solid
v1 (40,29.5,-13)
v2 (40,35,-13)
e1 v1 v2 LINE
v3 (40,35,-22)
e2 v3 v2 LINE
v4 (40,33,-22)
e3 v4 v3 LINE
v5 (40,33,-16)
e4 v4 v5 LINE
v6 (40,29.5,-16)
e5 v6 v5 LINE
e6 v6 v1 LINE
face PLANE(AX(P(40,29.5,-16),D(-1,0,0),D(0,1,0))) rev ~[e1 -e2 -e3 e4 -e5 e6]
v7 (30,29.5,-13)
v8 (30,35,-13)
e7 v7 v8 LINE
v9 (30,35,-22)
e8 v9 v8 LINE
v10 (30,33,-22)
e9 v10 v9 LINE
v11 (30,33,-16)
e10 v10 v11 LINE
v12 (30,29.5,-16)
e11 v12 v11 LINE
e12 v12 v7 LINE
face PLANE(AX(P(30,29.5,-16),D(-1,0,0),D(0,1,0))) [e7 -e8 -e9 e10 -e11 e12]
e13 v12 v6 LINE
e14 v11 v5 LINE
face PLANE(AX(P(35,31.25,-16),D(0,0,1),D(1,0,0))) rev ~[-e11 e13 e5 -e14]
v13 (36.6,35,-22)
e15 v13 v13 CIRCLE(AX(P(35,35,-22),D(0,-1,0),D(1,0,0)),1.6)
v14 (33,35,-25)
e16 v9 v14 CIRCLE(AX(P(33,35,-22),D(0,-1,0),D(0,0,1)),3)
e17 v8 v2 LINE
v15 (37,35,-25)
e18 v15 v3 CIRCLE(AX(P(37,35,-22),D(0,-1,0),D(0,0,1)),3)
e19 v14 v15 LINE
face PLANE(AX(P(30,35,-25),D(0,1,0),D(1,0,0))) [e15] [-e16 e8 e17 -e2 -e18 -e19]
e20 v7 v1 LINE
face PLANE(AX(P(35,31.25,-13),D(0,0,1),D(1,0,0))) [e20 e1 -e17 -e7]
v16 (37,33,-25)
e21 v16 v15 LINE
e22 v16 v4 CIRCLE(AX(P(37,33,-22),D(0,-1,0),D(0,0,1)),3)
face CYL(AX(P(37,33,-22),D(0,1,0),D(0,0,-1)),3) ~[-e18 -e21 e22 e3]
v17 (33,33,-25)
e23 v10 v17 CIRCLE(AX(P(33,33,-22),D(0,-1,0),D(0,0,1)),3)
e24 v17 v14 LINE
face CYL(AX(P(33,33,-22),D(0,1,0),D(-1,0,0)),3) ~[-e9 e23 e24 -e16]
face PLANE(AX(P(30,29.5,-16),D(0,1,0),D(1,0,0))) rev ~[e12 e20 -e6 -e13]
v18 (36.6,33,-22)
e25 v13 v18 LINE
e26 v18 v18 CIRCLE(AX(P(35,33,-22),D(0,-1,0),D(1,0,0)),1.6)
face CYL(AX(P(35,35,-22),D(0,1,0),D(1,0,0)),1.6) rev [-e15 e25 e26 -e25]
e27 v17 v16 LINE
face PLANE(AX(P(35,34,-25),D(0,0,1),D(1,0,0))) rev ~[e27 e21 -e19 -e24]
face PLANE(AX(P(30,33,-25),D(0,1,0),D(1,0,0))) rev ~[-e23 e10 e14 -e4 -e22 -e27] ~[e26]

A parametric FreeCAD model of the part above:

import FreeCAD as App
import Part
import Sketcher

V = App.Vector


def edges_at(feature, points):
    """Names of the edges that pass closest to the given points."""
    edges = feature.Shape.Edges
    near = lambda p: min(range(len(edges)), key=lambda i: edges[i].distToShape(Part.Vertex(*p))[0])
    return sorted({f"Edge{near(p) + 1}" for p in points})


def add_polygon(sketch, points):
    """Adds a closed chain of lines whose ends are joined by coincident constraints."""
    first, n = sketch.GeometryCount, len(points)
    for a, b in zip(points, points[1:] + points[:1]):
        sketch.addGeometry(Part.LineSegment(App.Vector(*a, 0), App.Vector(*b, 0)), False)
    for i in range(n):
        sketch.addConstraint(Sketcher.Constraint("Coincident", first + i, 2, first + (i + 1) % n, 1))

doc = App.newDocument("Part")
params = doc.addObject("Spreadsheet::Sheet", "Params")
for row, (alias, value) in enumerate([
    ("sketch1_width", "10 mm"),
    ("sketch1_height", "3.5 mm"),
    ("pad1_length", "3 mm"),
    ("sketch2_diameter", "3.2 mm"),
    ("pad2_length", "2 mm"),
    ("sketch3_width", "10 mm"),
    ("sketch3_height", "2 mm"),
    ("pad3_length", "12 mm"),
    ("fillet_radius", "3 mm"),
], start=1):
    params.set(f"A{row}", alias)
    params.set(f"B{row}", "=" + value)
    params.setAlias(f"B{row}", alias)

body = doc.addObject("PartDesign::Body", "Body")

# Sketch on XY plane
sketch1 = doc.addObject("Sketcher::SketchObject", "Sketch")
body.addObject(sketch1)
sketch1.AttachmentSupport = (doc.XY_Plane, [""])
sketch1.MapMode = "FlatFace"
sketch1.AttachmentOffset = App.Placement(V(0, 0, -16), App.Rotation())
add_polygon(sketch1, [(30, 33), (30, 29.5), (40, 29.5), (40, 33)])  # lines 0-3
sketch1.addConstraint(Sketcher.Constraint("Vertical", 0))
sketch1.addConstraint(Sketcher.Constraint("Horizontal", 1))
sketch1.addConstraint(Sketcher.Constraint("Vertical", 2))
sketch1.addConstraint(Sketcher.Constraint("Horizontal", 3))
sketch1.addConstraint(Sketcher.Constraint("DistanceX", 1, 1, 1, 2, 10.0))
sketch1.addConstraint(Sketcher.Constraint("DistanceY", 0, 2, 0, 1, 3.5))
sketch1.addConstraint(Sketcher.Constraint("DistanceX", -1, 1, 0, 2, 30.0))
sketch1.addConstraint(Sketcher.Constraint("DistanceY", -1, 1, 2, 2, 33.0))
sketch1.setExpression("Constraints[8]", "Params.sketch1_width")
sketch1.setExpression("Constraints[9]", "Params.sketch1_height")
pad1 = doc.addObject("PartDesign::Pad", "Pad")
body.addObject(pad1)
pad1.Profile = sketch1
pad1.setExpression("Length", "Params.pad1_length")
body2 = doc.addObject("PartDesign::Body", "Body001")

# Sketch on XZ plane
sketch2 = doc.addObject("Sketcher::SketchObject", "Sketch001")
body2.addObject(sketch2)
sketch2.AttachmentSupport = (doc.getObject("XZ_Plane001"), [""])
sketch2.MapMode = "FlatFace"
sketch2.AttachmentOffset = App.Placement(V(0, 0, -35), App.Rotation())
sketch2.addGeometry(Part.Circle(V(35, -22, 0), V(0, 0, 1), 1.6), False)
sketch2.addConstraint(Sketcher.Constraint("Diameter", 0, 3.2))
sketch2.addConstraint(Sketcher.Constraint("DistanceX", -1, 1, 0, 3, 35.0))
sketch2.addConstraint(Sketcher.Constraint("DistanceY", 0, 3, -1, 1, 22.0))
sketch2.setExpression("Constraints[0]", "Params.sketch2_diameter")
pad2 = doc.addObject("PartDesign::Pad", "Pad001")
body2.addObject(pad2)
pad2.Profile = sketch2
pad2.setExpression("Length", "Params.pad2_length")
body3 = doc.addObject("PartDesign::Body", "Body002")

# Sketch on XY plane
sketch3 = doc.addObject("Sketcher::SketchObject", "Sketch002")
body3.addObject(sketch3)
sketch3.AttachmentSupport = (doc.getObject("XY_Plane002"), [""])
sketch3.MapMode = "FlatFace"
sketch3.AttachmentOffset = App.Placement(V(0, 0, -25), App.Rotation())
add_polygon(sketch3, [(30, 35), (30, 33), (40, 33), (40, 35)])  # lines 0-3
sketch3.addConstraint(Sketcher.Constraint("Vertical", 0))
sketch3.addConstraint(Sketcher.Constraint("Horizontal", 1))
sketch3.addConstraint(Sketcher.Constraint("Vertical", 2))
sketch3.addConstraint(Sketcher.Constraint("Horizontal", 3))
sketch3.addConstraint(Sketcher.Constraint("DistanceX", 1, 1, 1, 2, 10.0))
sketch3.addConstraint(Sketcher.Constraint("DistanceY", 0, 2, 0, 1, 2.0))
sketch3.addConstraint(Sketcher.Constraint("DistanceX", -1, 1, 0, 2, 30.0))
sketch3.addConstraint(Sketcher.Constraint("DistanceY", -1, 1, 0, 2, 33.0))
sketch3.setExpression("Constraints[8]", "Params.sketch3_width")
sketch3.setExpression("Constraints[9]", "Params.sketch3_height")
pad3 = doc.addObject("PartDesign::Pad", "Pad002")
body3.addObject(pad3)
pad3.Profile = sketch3
pad3.setExpression("Length", "Params.pad3_length")
doc.recompute()

boolean = doc.addObject("PartDesign::Boolean", "Boolean")
body3.addObject(boolean)
boolean.Type = "Cut"
boolean.addObjects([body2])
doc.recompute()

fillet = doc.addObject("PartDesign::Fillet", "Fillet")
body3.addObject(fillet)
fillet.Base = (boolean, edges_at(boolean, [(30, 34, -25), (40, 34, -25)]))
fillet.setExpression("Radius", "Params.fillet_radius")
doc.recompute()

boolean2 = doc.addObject("PartDesign::Boolean", "Boolean001")
body3.addObject(boolean2)
boolean2.Type = "Fuse"
boolean2.addObjects([body])

doc.recompute()
